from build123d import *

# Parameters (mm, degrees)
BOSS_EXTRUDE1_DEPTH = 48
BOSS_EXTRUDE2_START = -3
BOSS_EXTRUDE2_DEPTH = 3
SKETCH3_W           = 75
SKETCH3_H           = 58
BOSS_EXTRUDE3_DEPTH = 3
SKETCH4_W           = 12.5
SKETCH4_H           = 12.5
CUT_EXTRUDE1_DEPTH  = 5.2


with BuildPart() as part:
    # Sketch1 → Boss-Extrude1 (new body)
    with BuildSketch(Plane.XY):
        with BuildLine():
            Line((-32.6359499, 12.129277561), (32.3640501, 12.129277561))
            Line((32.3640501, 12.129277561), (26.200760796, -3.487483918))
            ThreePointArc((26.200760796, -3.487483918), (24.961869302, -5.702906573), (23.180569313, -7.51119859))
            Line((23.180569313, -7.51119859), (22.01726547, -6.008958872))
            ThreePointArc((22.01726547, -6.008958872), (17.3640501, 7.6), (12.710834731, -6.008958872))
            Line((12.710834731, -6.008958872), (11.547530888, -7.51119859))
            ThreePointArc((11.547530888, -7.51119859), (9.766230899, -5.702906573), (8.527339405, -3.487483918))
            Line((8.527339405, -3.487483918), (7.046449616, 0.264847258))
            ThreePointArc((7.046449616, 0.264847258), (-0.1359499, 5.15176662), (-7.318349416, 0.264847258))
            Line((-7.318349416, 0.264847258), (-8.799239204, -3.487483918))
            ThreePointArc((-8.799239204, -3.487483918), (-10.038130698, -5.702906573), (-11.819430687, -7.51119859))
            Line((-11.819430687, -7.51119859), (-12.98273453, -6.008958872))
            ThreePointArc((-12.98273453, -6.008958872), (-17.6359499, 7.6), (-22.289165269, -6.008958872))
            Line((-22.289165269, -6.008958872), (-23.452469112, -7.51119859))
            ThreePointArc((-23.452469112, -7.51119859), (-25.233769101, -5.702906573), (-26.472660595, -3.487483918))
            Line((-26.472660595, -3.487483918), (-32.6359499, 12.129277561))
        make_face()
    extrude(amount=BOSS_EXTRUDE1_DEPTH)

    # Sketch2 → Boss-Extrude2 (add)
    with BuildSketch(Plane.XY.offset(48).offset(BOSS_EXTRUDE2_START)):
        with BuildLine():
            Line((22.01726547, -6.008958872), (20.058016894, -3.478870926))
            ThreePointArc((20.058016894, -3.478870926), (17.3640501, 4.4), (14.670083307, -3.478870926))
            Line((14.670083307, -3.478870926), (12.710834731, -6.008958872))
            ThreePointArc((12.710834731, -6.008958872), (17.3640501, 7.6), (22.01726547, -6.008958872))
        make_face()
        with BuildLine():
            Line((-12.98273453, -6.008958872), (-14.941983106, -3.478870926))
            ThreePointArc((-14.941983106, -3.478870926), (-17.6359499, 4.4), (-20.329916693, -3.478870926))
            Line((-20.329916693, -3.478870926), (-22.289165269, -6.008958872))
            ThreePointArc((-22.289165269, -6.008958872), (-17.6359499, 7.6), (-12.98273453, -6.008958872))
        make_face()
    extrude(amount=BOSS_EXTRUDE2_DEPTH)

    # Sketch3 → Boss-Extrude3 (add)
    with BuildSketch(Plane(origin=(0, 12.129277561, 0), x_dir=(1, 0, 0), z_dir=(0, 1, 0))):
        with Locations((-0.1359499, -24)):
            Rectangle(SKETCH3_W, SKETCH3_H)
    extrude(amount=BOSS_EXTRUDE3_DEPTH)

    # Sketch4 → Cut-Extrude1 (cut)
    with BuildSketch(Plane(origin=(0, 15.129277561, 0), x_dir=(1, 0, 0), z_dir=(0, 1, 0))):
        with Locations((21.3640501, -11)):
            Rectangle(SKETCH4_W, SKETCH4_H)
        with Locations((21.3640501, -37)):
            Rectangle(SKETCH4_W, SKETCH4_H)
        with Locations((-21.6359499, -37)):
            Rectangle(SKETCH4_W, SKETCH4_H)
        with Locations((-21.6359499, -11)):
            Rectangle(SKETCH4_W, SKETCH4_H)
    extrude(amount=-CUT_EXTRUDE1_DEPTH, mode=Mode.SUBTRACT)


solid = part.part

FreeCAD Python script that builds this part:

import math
import FreeCAD as App
import Part
import Sketcher
from FreeCAD import Vector


def add_polygon(sketch, points):
    """Adds a closed chain of lines whose ends are joined by coincident constraints."""
    first, n = sketch.GeometryCount, len(points)
    for a, b in zip(points, points[1:] + points[:1]):
        sketch.addGeometry(Part.LineSegment(App.Vector(*a, 0), App.Vector(*b, 0)), False)
    for i in range(n):
        sketch.addConstraint(Sketcher.Constraint("Coincident", first + i, 2, first + (i + 1) % n, 1))

doc = App.newDocument("Part")
body = doc.addObject("PartDesign::Body", "Body")

sketch1 = doc.addObject("Sketcher::SketchObject", "Sketch")
body.addObject(sketch1)
sketch1.AttachmentSupport = (doc.XY_Plane, [""])
sketch1.MapMode = "FlatFace"
sketch1.addGeometry(Part.LineSegment(Vector(32.36405, 12.129278, 0), Vector(-32.63595, 12.129278, 0)), False)
sketch1.addGeometry(Part.LineSegment(Vector(-32.63595, 12.129278, 0), Vector(-26.472661, -3.487484, 0)), False)
sketch1.addGeometry(Part.ArcOfCircle(Part.Circle(Vector(-17.63595, 0, 0), Vector(0, 0, 1), 9.5), math.radians(-158.462903), math.radians(-127.753471)), False)
sketch1.addGeometry(Part.LineSegment(Vector(-23.452469, -7.511199, 0), Vector(-22.289165, -6.008959, 0)), False)
sketch1.addGeometry(Part.ArcOfCircle(Part.Circle(Vector(-17.63595, 0, 0), Vector(0, 0, 1), 7.6), math.radians(-52.246529), math.radians(232.246529)), False)
sketch1.addGeometry(Part.LineSegment(Vector(-12.982735, -6.008959, 0), Vector(-11.819431, -7.511199, 0)), False)
sketch1.addGeometry(Part.ArcOfCircle(Part.Circle(Vector(-17.63595, 0, 0), Vector(0, 0, 1), 9.5), math.radians(-52.246529), math.radians(-21.537097)), False)
sketch1.addGeometry(Part.LineSegment(Vector(-8.799239, -3.487484, 0), Vector(-7.318349, 0.264847, 0)), False)
sketch1.addGeometry(Part.ArcOfCircle(Part.Circle(Vector(-0.13595, -2.569749, 0), Vector(0, 0, 1), 7.721515), math.radians(21.537097), math.radians(158.462903)), False)
sketch1.addGeometry(Part.LineSegment(Vector(7.04645, 0.264847, 0), Vector(8.527339, -3.487484, 0)), False)
sketch1.addGeometry(Part.ArcOfCircle(Part.Circle(Vector(17.36405, 0, 0), Vector(0, 0, 1), 9.5), math.radians(-158.462903), math.radians(-127.753471)), False)
sketch1.addGeometry(Part.LineSegment(Vector(11.547531, -7.511199, 0), Vector(12.710835, -6.008959, 0)), False)
sketch1.addGeometry(Part.ArcOfCircle(Part.Circle(Vector(17.36405, 0, 0), Vector(0, 0, 1), 7.6), math.radians(-52.246529), math.radians(232.246529)), False)
sketch1.addGeometry(Part.LineSegment(Vector(22.017265, -6.008959, 0), Vector(23.180569, -7.511199, 0)), False)
sketch1.addGeometry(Part.ArcOfCircle(Part.Circle(Vector(17.36405, 0, 0), Vector(0, 0, 1), 9.5), math.radians(-52.246529), math.radians(-21.537097)), False)
sketch1.addGeometry(Part.LineSegment(Vector(26.200761, -3.487484, 0), Vector(32.36405, 12.129278, 0)), False)
sketch1.addConstraint(Sketcher.Constraint("Coincident", 0, 2, 1, 1))
sketch1.addConstraint(Sketcher.Constraint("Tangent", 1, 2, 2, 1))
sketch1.addConstraint(Sketcher.Constraint("Coincident", 2, 2, 3, 1))
sketch1.addConstraint(Sketcher.Constraint("Coincident", 3, 2, 4, 2))
sketch1.addConstraint(Sketcher.Constraint("Coincident", 4, 1, 5, 1))
sketch1.addConstraint(Sketcher.Constraint("Coincident", 5, 2, 6, 1))
sketch1.addConstraint(Sketcher.Constraint("Tangent", 6, 2, 7, 1))
sketch1.addConstraint(Sketcher.Constraint("Tangent", 7, 2, 8, 2))
sketch1.addConstraint(Sketcher.Constraint("Tangent", 8, 1, 9, 1))
sketch1.addConstraint(Sketcher.Constraint("Tangent", 9, 2, 10, 1))
sketch1.addConstraint(Sketcher.Constraint("Coincident", 10, 2, 11, 1))
sketch1.addConstraint(Sketcher.Constraint("Coincident", 11, 2, 12, 2))
sketch1.addConstraint(Sketcher.Constraint("Coincident", 12, 1, 13, 1))
sketch1.addConstraint(Sketcher.Constraint("Coincident", 13, 2, 14, 1))
sketch1.addConstraint(Sketcher.Constraint("Tangent", 14, 2, 15, 1))
sketch1.addConstraint(Sketcher.Constraint("Coincident", 15, 2, 0, 1))
sketch1.addConstraint(Sketcher.Constraint("Horizontal", 0))
sketch1.addConstraint(Sketcher.Constraint("Coincident", 4, 3, 2, 3))
sketch1.addConstraint(Sketcher.Constraint("Coincident", 6, 3, 2, 3))
sketch1.addConstraint(Sketcher.Constraint("Coincident", 12, 3, 10, 3))
sketch1.addConstraint(Sketcher.Constraint("Coincident", 14, 3, 10, 3))
sketch1.addConstraint(Sketcher.Constraint("Equal", 2, 6))
sketch1.addConstraint(Sketcher.Constraint("Equal", 6, 10))
sketch1.addConstraint(Sketcher.Constraint("Equal", 4, 12))
sketch1.addConstraint(Sketcher.Constraint("Equal", 10, 14))
sketch1.addConstraint(Sketcher.Constraint("PointOnObject", 2, 3, -1))
sketch1.addConstraint(Sketcher.Constraint("PointOnObject", 10, 3, -1))
sketch1.addConstraint(Sketcher.Constraint("Parallel", 1, 9))
sketch1.addConstraint(Sketcher.Constraint("Parallel", 3, 11))
sketch1.addConstraint(Sketcher.Constraint("Parallel", 5, 13))
sketch1.addConstraint(Sketcher.Constraint("Parallel", 7, 15))
sketch1.addConstraint(Sketcher.Constraint("Horizontal", 3, 2, 4, 1))
sketch1.addConstraint(Sketcher.Constraint("Horizontal", 2, 2, 5, 2))
sketch1.addConstraint(Sketcher.Constraint("Horizontal", 1, 2, 6, 2))
sketch1.addConstraint(Sketcher.Constraint("Horizontal", 5, 2, 10, 2))
sketch1.addConstraint(Sketcher.Constraint("Horizontal", 11, 2, 12, 1))
sketch1.addConstraint(Sketcher.Constraint("Radius", 2, 9.5))
sketch1.addConstraint(Sketcher.Constraint("Radius", 4, 7.6))
sketch1.addConstraint(Sketcher.Constraint("DistanceX", 0, 2, 0, 1, 65.0))
sketch1.addConstraint(Sketcher.Constraint("DistanceX", 2, 3, 10, 3, 35.0))
sketch1.addConstraint(Sketcher.Constraint("Radius", 8, 7.721515))
sketch1.addConstraint(Sketcher.Constraint("DistanceY", 2, 2, -1, 1, 7.511199))
sketch1.addConstraint(Sketcher.Constraint("DistanceX", 7, 2, 8, 3, 7.1824))
sketch1.addConstraint(Sketcher.Constraint("DistanceX", 2, 3, -1, 1, 17.63595))
sketch1.addConstraint(Sketcher.Constraint("DistanceY", 3, 2, -1, 1, 6.008959))
pad1 = doc.addObject("PartDesign::Pad", "Pad")
body.addObject(pad1)
pad1.Profile = sketch1
pad1.Length = 48

sketch2 = doc.addObject("Sketcher::SketchObject", "Sketch001")
body.addObject(sketch2)
sketch2.AttachmentSupport = (doc.XY_Plane, [""])
sketch2.MapMode = "FlatFace"
sketch2.AttachmentOffset = App.Placement(Vector(0, 0, 45), App.Rotation())
sketch2.addGeometry(Part.LineSegment(Vector(20.058017, -3.478871, 0), Vector(22.017265, -6.008959, 0)), False)
sketch2.addGeometry(Part.ArcOfCircle(Part.Circle(Vector(17.36405, 0, 0), Vector(0, 0, 1), 7.6), math.radians(-52.246529), math.radians(232.246529)), False)
sketch2.addGeometry(Part.LineSegment(Vector(12.710835, -6.008959, 0), Vector(14.670083, -3.478871, 0)), False)
sketch2.addGeometry(Part.ArcOfCircle(Part.Circle(Vector(17.36405, 0, 0), Vector(0, 0, 1), 4.4), math.radians(-52.246529), math.radians(232.246529)), False)
sketch2.addGeometry(Part.LineSegment(Vector(-14.941983, -3.478871, 0), Vector(-12.982735, -6.008959, 0)), False)
sketch2.addGeometry(Part.ArcOfCircle(Part.Circle(Vector(-17.63595, 0, 0), Vector(0, 0, 1), 7.6), math.radians(-52.246529), math.radians(232.246529)), False)
sketch2.addGeometry(Part.LineSegment(Vector(-22.289165, -6.008959, 0), Vector(-20.329917, -3.478871, 0)), False)
sketch2.addGeometry(Part.ArcOfCircle(Part.Circle(Vector(-17.63595, 0, 0), Vector(0, 0, 1), 4.4), math.radians(-52.246529), math.radians(232.246529)), False)
sketch2.addConstraint(Sketcher.Constraint("Coincident", 0, 2, 1, 1))
sketch2.addConstraint(Sketcher.Constraint("Coincident", 1, 2, 2, 1))
sketch2.addConstraint(Sketcher.Constraint("Coincident", 2, 2, 3, 2))
sketch2.addConstraint(Sketcher.Constraint("Coincident", 3, 1, 0, 1))
sketch2.addConstraint(Sketcher.Constraint("Coincident", 4, 2, 5, 1))
sketch2.addConstraint(Sketcher.Constraint("Coincident", 5, 2, 6, 1))
sketch2.addConstraint(Sketcher.Constraint("Coincident", 6, 2, 7, 2))
sketch2.addConstraint(Sketcher.Constraint("Coincident", 7, 1, 4, 1))
sketch2.addConstraint(Sketcher.Constraint("Coincident", 3, 3, 1, 3))
sketch2.addConstraint(Sketcher.Constraint("Coincident", 7, 3, 5, 3))
sketch2.addConstraint(Sketcher.Constraint("Equal", 1, 5))
sketch2.addConstraint(Sketcher.Constraint("Equal", 3, 7))
sketch2.addConstraint(Sketcher.Constraint("PointOnObject", 1, 3, -1))
sketch2.addConstraint(Sketcher.Constraint("PointOnObject", 5, 3, -1))
sketch2.addConstraint(Sketcher.Constraint("Parallel", 0, 4))
sketch2.addConstraint(Sketcher.Constraint("Parallel", 2, 6))
sketch2.addConstraint(Sketcher.Constraint("Horizontal", 0, 2, 1, 2))
sketch2.addConstraint(Sketcher.Constraint("Horizontal", 2, 2, 3, 1))
sketch2.addConstraint(Sketcher.Constraint("Horizontal", 1, 2, 4, 2))
sketch2.addConstraint(Sketcher.Constraint("Horizontal", 4, 2, 5, 2))
sketch2.addConstraint(Sketcher.Constraint("Radius", 1, 7.6))
sketch2.addConstraint(Sketcher.Constraint("Radius", 3, 4.4))
sketch2.addConstraint(Sketcher.Constraint("DistanceX", 5, 3, 1, 3, 35.0))
sketch2.addConstraint(Sketcher.Constraint("DistanceX", -1, 1, 1, 3, 17.36405))
sketch2.addConstraint(Sketcher.Constraint("DistanceY", 0, 2, -1, 1, 6.008959))
sketch2.addConstraint(Sketcher.Constraint("DistanceY", 2, 2, -1, 1, 3.478871))
pad2 = doc.addObject("PartDesign::Pad", "Pad001")
body.addObject(pad2)
pad2.Profile = sketch2
pad2.Length = 3

sketch3 = doc.addObject("Sketcher::SketchObject", "Sketch002")
body.addObject(sketch3)
sketch3.AttachmentSupport = (doc.XZ_Plane, [""])
sketch3.MapMode = "FlatFace"
sketch3.AttachmentOffset = App.Placement(Vector(0, 0, -12.129278), App.Rotation())
add_polygon(sketch3, [(-37.63595, -5), (-37.63595, 53), (37.36405, 53), (37.36405, -5)])
sketch3.addConstraint(Sketcher.Constraint("Vertical", 0))
sketch3.addConstraint(Sketcher.Constraint("Horizontal", 1))
sketch3.addConstraint(Sketcher.Constraint("Vertical", 2))
sketch3.addConstraint(Sketcher.Constraint("Horizontal", 3))
sketch3.addConstraint(Sketcher.Constraint("DistanceX", 1, 1, 1, 2, 75.0))
sketch3.addConstraint(Sketcher.Constraint("DistanceY", 0, 1, 0, 2, 58.0))
sketch3.addConstraint(Sketcher.Constraint("DistanceY", -1, 1, 0, 2, 53.0))
sketch3.addConstraint(Sketcher.Constraint("DistanceX", 0, 2, -1, 1, 37.63595))
pad3 = doc.addObject("PartDesign::Pad", "Pad002")
body.addObject(pad3)
pad3.Profile = sketch3
pad3.Length = 3
pad3.Reversed = True

sketch4 = doc.addObject("Sketcher::SketchObject", "Sketch003")
body.addObject(sketch4)
sketch4.AttachmentSupport = (doc.XZ_Plane, [""])
sketch4.MapMode = "FlatFace"
sketch4.AttachmentOffset = App.Placement(Vector(0, 0, -15.129278), App.Rotation())
add_polygon(sketch4, [(15.11405, 4.75), (15.11405, 17.25), (27.61405, 17.25), (27.61405, 4.75)])
add_polygon(sketch4, [(15.11405, 30.75), (15.11405, 43.25), (27.61405, 43.25), (27.61405, 30.75)])
add_polygon(sketch4, [(-27.88595, 30.75), (-27.88595, 43.25), (-15.38595, 43.25), (-15.38595, 30.75)])
add_polygon(sketch4, [(-27.88595, 4.75), (-27.88595, 17.25), (-15.38595, 17.25), (-15.38595, 4.75)])
sketch4.addConstraint(Sketcher.Constraint("Vertical", 0))
sketch4.addConstraint(Sketcher.Constraint("Horizontal", 1))
sketch4.addConstraint(Sketcher.Constraint("Vertical", 2))
sketch4.addConstraint(Sketcher.Constraint("Horizontal", 3))
sketch4.addConstraint(Sketcher.Constraint("Vertical", 4))
sketch4.addConstraint(Sketcher.Constraint("Horizontal", 5))
sketch4.addConstraint(Sketcher.Constraint("Vertical", 6))
sketch4.addConstraint(Sketcher.Constraint("Horizontal", 7))
sketch4.addConstraint(Sketcher.Constraint("Vertical", 8))
sketch4.addConstraint(Sketcher.Constraint("Horizontal", 9))
sketch4.addConstraint(Sketcher.Constraint("Vertical", 10))
sketch4.addConstraint(Sketcher.Constraint("Horizontal", 11))
sketch4.addConstraint(Sketcher.Constraint("Vertical", 12))
sketch4.addConstraint(Sketcher.Constraint("Horizontal", 13))
sketch4.addConstraint(Sketcher.Constraint("Vertical", 14))
sketch4.addConstraint(Sketcher.Constraint("Horizontal", 15))
sketch4.addConstraint(Sketcher.Constraint("Horizontal", 5, 2, 8, 2))
sketch4.addConstraint(Sketcher.Constraint("Horizontal", 7, 2, 10, 2))
sketch4.addConstraint(Sketcher.Constraint("Horizontal", 1, 2, 12, 2))
sketch4.addConstraint(Sketcher.Constraint("Horizontal", 3, 2, 14, 2))
sketch4.addConstraint(Sketcher.Constraint("Vertical", 3, 2, 4, 2))
sketch4.addConstraint(Sketcher.Constraint("Vertical", 2, 2, 5, 2))
sketch4.addConstraint(Sketcher.Constraint("Vertical", 11, 2, 12, 2))
sketch4.addConstraint(Sketcher.Constraint("Vertical", 10, 2, 13, 2))
sketch4.addConstraint(Sketcher.Constraint("Equal", 7, 9))
sketch4.addConstraint(Sketcher.Constraint("Equal", 15, 0))
sketch4.addConstraint(Sketcher.Constraint("Equal", 2, 4))
sketch4.addConstraint(Sketcher.Constraint("DistanceX", 1, 1, 1, 2, 12.5))
sketch4.addConstraint(Sketcher.Constraint("DistanceY", 0, 2, 4, 2, 26.0))
sketch4.addConstraint(Sketcher.Constraint("DistanceX", 8, 2, 4, 2, 43.0))
sketch4.addConstraint(Sketcher.Constraint("DistanceY", -1, 1, 0, 2, 17.25))
sketch4.addConstraint(Sketcher.Constraint("DistanceX", -1, 1, 0, 2, 15.11405))
pocket1 = doc.addObject("PartDesign::Pocket", "Pocket")
body.addObject(pocket1)
pocket1.Profile = sketch4
pocket1.Length = 5.2
pocket1.Reversed = True

doc.recompute()
